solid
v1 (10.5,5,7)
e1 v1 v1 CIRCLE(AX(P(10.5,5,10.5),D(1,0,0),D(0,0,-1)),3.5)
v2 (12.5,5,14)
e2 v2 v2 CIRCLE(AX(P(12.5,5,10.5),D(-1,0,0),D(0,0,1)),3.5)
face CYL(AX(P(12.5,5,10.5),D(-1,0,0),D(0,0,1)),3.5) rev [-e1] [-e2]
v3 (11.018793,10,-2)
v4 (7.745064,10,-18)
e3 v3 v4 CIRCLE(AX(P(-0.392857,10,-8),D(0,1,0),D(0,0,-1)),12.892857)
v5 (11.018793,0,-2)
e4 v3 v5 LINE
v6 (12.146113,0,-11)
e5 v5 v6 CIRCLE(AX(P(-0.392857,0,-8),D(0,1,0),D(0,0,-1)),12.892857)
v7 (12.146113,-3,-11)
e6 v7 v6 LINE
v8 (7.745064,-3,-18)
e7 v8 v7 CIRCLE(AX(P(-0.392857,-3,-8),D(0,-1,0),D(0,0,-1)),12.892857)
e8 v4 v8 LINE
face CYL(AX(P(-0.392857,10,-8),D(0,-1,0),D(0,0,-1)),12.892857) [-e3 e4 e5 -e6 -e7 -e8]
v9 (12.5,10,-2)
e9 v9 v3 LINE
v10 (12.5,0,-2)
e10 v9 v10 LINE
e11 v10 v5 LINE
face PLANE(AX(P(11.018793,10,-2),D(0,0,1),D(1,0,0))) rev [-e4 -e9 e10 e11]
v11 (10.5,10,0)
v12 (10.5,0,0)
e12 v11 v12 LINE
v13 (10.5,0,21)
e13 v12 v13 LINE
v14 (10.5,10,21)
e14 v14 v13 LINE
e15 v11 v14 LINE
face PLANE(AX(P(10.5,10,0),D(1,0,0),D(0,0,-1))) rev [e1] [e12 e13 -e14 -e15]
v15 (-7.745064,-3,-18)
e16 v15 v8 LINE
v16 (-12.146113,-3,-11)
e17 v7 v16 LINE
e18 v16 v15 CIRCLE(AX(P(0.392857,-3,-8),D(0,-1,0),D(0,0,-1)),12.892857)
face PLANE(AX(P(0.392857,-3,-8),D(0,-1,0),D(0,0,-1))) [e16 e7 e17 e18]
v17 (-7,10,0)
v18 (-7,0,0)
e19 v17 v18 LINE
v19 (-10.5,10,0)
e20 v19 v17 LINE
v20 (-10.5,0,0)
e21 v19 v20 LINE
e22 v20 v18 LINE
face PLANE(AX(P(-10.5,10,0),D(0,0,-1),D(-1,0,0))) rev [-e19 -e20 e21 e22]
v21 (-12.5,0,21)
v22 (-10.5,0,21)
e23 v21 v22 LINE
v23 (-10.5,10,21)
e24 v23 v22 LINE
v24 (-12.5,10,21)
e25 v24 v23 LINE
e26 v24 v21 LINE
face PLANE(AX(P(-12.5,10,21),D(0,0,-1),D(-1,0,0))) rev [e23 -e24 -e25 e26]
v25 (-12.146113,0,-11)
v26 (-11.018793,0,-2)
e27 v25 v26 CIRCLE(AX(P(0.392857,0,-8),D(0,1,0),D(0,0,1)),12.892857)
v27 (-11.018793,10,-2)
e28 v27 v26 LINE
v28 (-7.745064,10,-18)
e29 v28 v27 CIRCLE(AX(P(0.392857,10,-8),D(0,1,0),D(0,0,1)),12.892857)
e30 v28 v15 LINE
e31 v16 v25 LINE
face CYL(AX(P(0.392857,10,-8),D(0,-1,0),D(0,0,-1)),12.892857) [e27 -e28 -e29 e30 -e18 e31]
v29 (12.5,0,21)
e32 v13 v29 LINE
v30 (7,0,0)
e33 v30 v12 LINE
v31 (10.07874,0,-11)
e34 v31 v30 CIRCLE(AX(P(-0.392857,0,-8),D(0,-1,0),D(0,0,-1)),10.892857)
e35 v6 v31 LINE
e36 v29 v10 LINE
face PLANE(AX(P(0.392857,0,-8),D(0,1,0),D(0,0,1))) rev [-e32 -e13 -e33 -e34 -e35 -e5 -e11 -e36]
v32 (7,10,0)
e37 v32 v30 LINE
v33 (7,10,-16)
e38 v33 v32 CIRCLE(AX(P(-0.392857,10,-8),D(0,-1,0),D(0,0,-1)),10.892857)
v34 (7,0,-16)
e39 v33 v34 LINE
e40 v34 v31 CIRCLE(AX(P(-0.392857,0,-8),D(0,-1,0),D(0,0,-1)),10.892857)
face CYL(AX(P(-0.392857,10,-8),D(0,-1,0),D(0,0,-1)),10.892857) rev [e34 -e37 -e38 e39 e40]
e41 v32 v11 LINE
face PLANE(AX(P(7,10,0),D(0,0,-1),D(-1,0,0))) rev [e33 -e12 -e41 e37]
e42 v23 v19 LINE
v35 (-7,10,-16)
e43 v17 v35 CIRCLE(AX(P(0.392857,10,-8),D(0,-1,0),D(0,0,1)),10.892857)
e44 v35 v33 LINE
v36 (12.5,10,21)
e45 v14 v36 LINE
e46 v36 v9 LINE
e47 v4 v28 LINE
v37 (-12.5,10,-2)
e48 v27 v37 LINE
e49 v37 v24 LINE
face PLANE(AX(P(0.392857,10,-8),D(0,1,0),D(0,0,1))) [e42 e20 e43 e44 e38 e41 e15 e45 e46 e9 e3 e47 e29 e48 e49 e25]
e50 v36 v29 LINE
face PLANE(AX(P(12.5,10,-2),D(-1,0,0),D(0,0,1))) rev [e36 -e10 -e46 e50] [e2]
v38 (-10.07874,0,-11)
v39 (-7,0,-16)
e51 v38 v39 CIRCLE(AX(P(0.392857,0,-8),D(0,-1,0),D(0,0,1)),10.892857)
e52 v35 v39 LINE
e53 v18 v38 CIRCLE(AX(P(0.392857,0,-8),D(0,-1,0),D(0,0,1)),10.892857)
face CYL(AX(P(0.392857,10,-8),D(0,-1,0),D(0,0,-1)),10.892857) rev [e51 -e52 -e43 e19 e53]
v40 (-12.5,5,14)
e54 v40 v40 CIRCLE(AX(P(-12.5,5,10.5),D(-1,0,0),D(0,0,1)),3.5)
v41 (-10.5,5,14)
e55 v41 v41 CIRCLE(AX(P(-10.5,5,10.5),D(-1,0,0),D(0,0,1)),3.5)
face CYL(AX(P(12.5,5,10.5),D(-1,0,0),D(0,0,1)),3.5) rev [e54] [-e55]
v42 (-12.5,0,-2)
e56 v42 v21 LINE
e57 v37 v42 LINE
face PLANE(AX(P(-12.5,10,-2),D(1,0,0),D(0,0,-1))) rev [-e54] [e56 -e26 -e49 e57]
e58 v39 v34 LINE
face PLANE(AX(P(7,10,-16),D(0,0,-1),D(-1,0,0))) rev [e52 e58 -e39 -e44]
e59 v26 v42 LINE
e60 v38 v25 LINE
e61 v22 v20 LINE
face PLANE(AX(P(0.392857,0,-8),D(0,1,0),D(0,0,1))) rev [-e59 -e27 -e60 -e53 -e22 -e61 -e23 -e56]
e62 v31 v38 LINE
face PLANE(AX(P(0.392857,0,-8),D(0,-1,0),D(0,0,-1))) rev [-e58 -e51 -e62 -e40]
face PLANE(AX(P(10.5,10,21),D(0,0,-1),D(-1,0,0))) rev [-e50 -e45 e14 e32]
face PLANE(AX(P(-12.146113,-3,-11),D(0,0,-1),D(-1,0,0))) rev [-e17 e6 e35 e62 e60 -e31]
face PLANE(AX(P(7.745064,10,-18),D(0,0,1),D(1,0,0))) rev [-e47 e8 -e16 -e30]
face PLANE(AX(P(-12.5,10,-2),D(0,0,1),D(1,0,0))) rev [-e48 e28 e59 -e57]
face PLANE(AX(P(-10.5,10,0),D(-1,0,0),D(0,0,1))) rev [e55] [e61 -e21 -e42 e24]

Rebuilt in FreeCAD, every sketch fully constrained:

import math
import FreeCAD as App
import Part
import Sketcher

V = App.Vector
Q = App.Units.Quantity

doc = App.newDocument("Part")
body = doc.addObject("PartDesign::Body", "Body")

# Sketch on XZ plane
sketch1 = doc.addObject("Sketcher::SketchObject", "Sketch")
body.addObject(sketch1)
sketch1.AttachmentSupport = (doc.XZ_Plane, [""])
sketch1.MapMode = "FlatFace"
sketch1.addGeometry([
    Part.LineSegment(V(-7, -16, 0), V(7, -16, 0)),  # 0
    Part.ArcOfCircle(Part.Circle(V(-0.4, -8, 0), V(0, 0, 1), 10.9), math.radians(-47), math.radians(47)),  # 1
    Part.LineSegment(V(7, 0, 0), V(10.5, 0, 0)),  # 2
    Part.LineSegment(V(10.5, 0, 0), V(10.5, 21, 0)),  # 3
    Part.LineSegment(V(10.5, 21, 0), V(12.5, 21, 0)),  # 4
    Part.LineSegment(V(12.5, 21, 0), V(12.5, -2, 0)),  # 5
    Part.LineSegment(V(12.5, -2, 0), V(11, -2, 0)),  # 6
    Part.ArcOfCircle(Part.Circle(V(-0.4, -8, 0), V(0, 0, 1), 12.9), math.radians(-51), math.radians(28)),  # 7
    Part.LineSegment(V(7.7, -18, 0), V(-7.7, -18, 0)),  # 8
    Part.ArcOfCircle(Part.Circle(V(0.4, -8, 0), V(0, 0, 1), 12.9), math.radians(152), math.radians(231)),  # 9
    Part.LineSegment(V(-11, -2, 0), V(-12.5, -2, 0)),  # 10
    Part.LineSegment(V(-12.5, -2, 0), V(-12.5, 21, 0)),  # 11
    Part.LineSegment(V(-12.5, 21, 0), V(-10.5, 21, 0)),  # 12
    Part.LineSegment(V(-10.5, 21, 0), V(-10.5, 0, 0)),  # 13
    Part.LineSegment(V(-10.5, 0, 0), V(-7, 0, 0)),  # 14
    Part.ArcOfCircle(Part.Circle(V(0.4, -8, 0), V(0, 0, 1), 10.9), math.radians(133), math.radians(227)),  # 15
], False)
sketch1.addConstraint([
    Sketcher.Constraint("Coincident", 0, 2, 1, 1),
    Sketcher.Constraint("Coincident", 1, 2, 2, 1),
    Sketcher.Constraint("Coincident", 2, 2, 3, 1),
    Sketcher.Constraint("Coincident", 3, 2, 4, 1),
    Sketcher.Constraint("Coincident", 4, 2, 5, 1),
    Sketcher.Constraint("Coincident", 5, 2, 6, 1),
    Sketcher.Constraint("Coincident", 6, 2, 7, 2),
    Sketcher.Constraint("Coincident", 7, 1, 8, 1),
    Sketcher.Constraint("Coincident", 8, 2, 9, 2),
    Sketcher.Constraint("Coincident", 9, 1, 10, 1),
    Sketcher.Constraint("Coincident", 10, 2, 11, 1),
    Sketcher.Constraint("Coincident", 11, 2, 12, 1),
    Sketcher.Constraint("Coincident", 12, 2, 13, 1),
    Sketcher.Constraint("Coincident", 13, 2, 14, 1),
    Sketcher.Constraint("Coincident", 14, 2, 15, 1),
    Sketcher.Constraint("Coincident", 15, 2, 0, 1),
    Sketcher.Constraint("Horizontal", 0),
    Sketcher.Constraint("Horizontal", 2),
    Sketcher.Constraint("Vertical", 3),
    Sketcher.Constraint("Horizontal", 4),
    Sketcher.Constraint("Vertical", 5),
    Sketcher.Constraint("Horizontal", 6),
    Sketcher.Constraint("Horizontal", 8),
    Sketcher.Constraint("Horizontal", 10),
    Sketcher.Constraint("Vertical", 11),
    Sketcher.Constraint("Horizontal", 12),
    Sketcher.Constraint("Vertical", 13),
    Sketcher.Constraint("Horizontal", 14),
    Sketcher.Constraint("Coincident", 7, 3, 1, 3),
    Sketcher.Constraint("Coincident", 15, 3, 9, 3),
    Sketcher.Constraint("Equal", 7, 9),
    Sketcher.Constraint("Equal", 1, 15),
    Sketcher.Constraint("Symmetric", 2, 2, 13, 2, -1, 1),
    Sketcher.Constraint("Symmetric", 1, 3, 9, 3, -2),
    Sketcher.Constraint("Symmetric", 5, 2, 10, 2, -2),
    Sketcher.Constraint("PointOnObject", 1, 2, -1),
    Sketcher.Constraint("Horizontal", 4, 2, 11, 2),
    Sketcher.Constraint("Vertical", 0, 2, 1, 2),
    Sketcher.Constraint("DistanceX", 0, 1, 0, 2, Q("14 mm")),
    Sketcher.Constraint("DistanceX", 4, 1, 4, 2, Q("2 mm")),
    Sketcher.Constraint("DistanceY", 3, 1, 3, 2, Q("21 mm")),
    Sketcher.Constraint("DistanceY", 5, 2, 5, 1, Q("23 mm")),
    Sketcher.Constraint("DistanceX", 2, 1, 2, 2, Q("3.5 mm")),
    Sketcher.Constraint("DistanceY", 1, 3, -1, 1, Q("8 mm")),
    Sketcher.Constraint("DistanceY", 7, 1, -1, 1, Q("18 mm")),
    Sketcher.Constraint("Radius", 1, Q("10.892857 mm")),
    Sketcher.Constraint("Radius", 7, Q("12.892857 mm")),
])
pad1 = doc.addObject("PartDesign::Pad", "Pad")
body.addObject(pad1)
pad1.Profile = sketch1
pad1.Length = 10
pad1.Reversed = True

# Sketch on YZ plane
sketch2 = doc.addObject("Sketcher::SketchObject", "Sketch001")
body.addObject(sketch2)
sketch2.AttachmentSupport = (doc.YZ_Plane, [""])
sketch2.MapMode = "FlatFace"
sketch2.AttachmentOffset = App.Placement(V(0, 0, -12.5), App.Rotation())
sketch2.addGeometry(Part.Circle(V(5, 10.5, 0), V(0, 0, 1), 3.5), False)
sketch2.addConstraint([
    Sketcher.Constraint("Diameter", 0, Q("7 mm")),
    Sketcher.Constraint("DistanceX", -1, 1, 0, 3, Q("5 mm")),
    Sketcher.Constraint("DistanceY", -1, 1, 0, 3, Q("10.5 mm")),
])
pocket1 = doc.addObject("PartDesign::Pocket", "Pocket")
body.addObject(pocket1)
pocket1.Profile = sketch2
pocket1.Type = "ThroughAll"
pocket1.Reversed = True

# Sketch on XZ plane
sketch3 = doc.addObject("Sketcher::SketchObject", "Sketch002")
body.addObject(sketch3)
sketch3.AttachmentSupport = (doc.XZ_Plane, [""])
sketch3.MapMode = "FlatFace"
sketch3.addGeometry([
    Part.LineSegment(V(12.146113, -11, 0), V(-12.146113, -11, 0)),
    Part.ArcOfCircle(Part.Circle(V(0.392857, -8, 0), V(0, 0, 1), 12.892857), math.radians(-166.544683), math.radians(-129.138426)),
    Part.LineSegment(V(-7.745064, -18, 0), V(7.745064, -18, 0)),
    Part.ArcOfCircle(Part.Circle(V(-0.392857, -8, 0), V(0, 0, 1), 12.892857), math.radians(-50.861574), math.radians(-13.455317)),
], False)
sketch3.addConstraint([
    Sketcher.Constraint("Coincident", 0, 2, 1, 1),
    Sketcher.Constraint("Coincident", 1, 2, 2, 1),
    Sketcher.Constraint("Coincident", 2, 2, 3, 1),
    Sketcher.Constraint("Coincident", 3, 2, 0, 1),
    Sketcher.Constraint("Horizontal", 0),
    Sketcher.Constraint("Horizontal", 2),
    Sketcher.Constraint("Equal", 1, 3),
    Sketcher.Constraint("Symmetric", 1, 3, 3, 3, -2),
    Sketcher.Constraint("DistanceY", 1, 3, -1, 1, Q("8 mm")),
    Sketcher.Constraint("DistanceY", 0, 2, -1, 1, Q("11 mm")),
    Sketcher.Constraint("DistanceY", 1, 2, -1, 1, Q("18 mm")),
    Sketcher.Constraint("Radius", 1, Q("12.892857 mm")),
    Sketcher.Constraint("DistanceX", 2, 1, 2, 2, Q("15.490129 mm")),
])
pad2 = doc.addObject("PartDesign::Pad", "Pad001")
body.addObject(pad2)
pad2.Profile = sketch3
pad2.Length = 3

doc.recompute()
